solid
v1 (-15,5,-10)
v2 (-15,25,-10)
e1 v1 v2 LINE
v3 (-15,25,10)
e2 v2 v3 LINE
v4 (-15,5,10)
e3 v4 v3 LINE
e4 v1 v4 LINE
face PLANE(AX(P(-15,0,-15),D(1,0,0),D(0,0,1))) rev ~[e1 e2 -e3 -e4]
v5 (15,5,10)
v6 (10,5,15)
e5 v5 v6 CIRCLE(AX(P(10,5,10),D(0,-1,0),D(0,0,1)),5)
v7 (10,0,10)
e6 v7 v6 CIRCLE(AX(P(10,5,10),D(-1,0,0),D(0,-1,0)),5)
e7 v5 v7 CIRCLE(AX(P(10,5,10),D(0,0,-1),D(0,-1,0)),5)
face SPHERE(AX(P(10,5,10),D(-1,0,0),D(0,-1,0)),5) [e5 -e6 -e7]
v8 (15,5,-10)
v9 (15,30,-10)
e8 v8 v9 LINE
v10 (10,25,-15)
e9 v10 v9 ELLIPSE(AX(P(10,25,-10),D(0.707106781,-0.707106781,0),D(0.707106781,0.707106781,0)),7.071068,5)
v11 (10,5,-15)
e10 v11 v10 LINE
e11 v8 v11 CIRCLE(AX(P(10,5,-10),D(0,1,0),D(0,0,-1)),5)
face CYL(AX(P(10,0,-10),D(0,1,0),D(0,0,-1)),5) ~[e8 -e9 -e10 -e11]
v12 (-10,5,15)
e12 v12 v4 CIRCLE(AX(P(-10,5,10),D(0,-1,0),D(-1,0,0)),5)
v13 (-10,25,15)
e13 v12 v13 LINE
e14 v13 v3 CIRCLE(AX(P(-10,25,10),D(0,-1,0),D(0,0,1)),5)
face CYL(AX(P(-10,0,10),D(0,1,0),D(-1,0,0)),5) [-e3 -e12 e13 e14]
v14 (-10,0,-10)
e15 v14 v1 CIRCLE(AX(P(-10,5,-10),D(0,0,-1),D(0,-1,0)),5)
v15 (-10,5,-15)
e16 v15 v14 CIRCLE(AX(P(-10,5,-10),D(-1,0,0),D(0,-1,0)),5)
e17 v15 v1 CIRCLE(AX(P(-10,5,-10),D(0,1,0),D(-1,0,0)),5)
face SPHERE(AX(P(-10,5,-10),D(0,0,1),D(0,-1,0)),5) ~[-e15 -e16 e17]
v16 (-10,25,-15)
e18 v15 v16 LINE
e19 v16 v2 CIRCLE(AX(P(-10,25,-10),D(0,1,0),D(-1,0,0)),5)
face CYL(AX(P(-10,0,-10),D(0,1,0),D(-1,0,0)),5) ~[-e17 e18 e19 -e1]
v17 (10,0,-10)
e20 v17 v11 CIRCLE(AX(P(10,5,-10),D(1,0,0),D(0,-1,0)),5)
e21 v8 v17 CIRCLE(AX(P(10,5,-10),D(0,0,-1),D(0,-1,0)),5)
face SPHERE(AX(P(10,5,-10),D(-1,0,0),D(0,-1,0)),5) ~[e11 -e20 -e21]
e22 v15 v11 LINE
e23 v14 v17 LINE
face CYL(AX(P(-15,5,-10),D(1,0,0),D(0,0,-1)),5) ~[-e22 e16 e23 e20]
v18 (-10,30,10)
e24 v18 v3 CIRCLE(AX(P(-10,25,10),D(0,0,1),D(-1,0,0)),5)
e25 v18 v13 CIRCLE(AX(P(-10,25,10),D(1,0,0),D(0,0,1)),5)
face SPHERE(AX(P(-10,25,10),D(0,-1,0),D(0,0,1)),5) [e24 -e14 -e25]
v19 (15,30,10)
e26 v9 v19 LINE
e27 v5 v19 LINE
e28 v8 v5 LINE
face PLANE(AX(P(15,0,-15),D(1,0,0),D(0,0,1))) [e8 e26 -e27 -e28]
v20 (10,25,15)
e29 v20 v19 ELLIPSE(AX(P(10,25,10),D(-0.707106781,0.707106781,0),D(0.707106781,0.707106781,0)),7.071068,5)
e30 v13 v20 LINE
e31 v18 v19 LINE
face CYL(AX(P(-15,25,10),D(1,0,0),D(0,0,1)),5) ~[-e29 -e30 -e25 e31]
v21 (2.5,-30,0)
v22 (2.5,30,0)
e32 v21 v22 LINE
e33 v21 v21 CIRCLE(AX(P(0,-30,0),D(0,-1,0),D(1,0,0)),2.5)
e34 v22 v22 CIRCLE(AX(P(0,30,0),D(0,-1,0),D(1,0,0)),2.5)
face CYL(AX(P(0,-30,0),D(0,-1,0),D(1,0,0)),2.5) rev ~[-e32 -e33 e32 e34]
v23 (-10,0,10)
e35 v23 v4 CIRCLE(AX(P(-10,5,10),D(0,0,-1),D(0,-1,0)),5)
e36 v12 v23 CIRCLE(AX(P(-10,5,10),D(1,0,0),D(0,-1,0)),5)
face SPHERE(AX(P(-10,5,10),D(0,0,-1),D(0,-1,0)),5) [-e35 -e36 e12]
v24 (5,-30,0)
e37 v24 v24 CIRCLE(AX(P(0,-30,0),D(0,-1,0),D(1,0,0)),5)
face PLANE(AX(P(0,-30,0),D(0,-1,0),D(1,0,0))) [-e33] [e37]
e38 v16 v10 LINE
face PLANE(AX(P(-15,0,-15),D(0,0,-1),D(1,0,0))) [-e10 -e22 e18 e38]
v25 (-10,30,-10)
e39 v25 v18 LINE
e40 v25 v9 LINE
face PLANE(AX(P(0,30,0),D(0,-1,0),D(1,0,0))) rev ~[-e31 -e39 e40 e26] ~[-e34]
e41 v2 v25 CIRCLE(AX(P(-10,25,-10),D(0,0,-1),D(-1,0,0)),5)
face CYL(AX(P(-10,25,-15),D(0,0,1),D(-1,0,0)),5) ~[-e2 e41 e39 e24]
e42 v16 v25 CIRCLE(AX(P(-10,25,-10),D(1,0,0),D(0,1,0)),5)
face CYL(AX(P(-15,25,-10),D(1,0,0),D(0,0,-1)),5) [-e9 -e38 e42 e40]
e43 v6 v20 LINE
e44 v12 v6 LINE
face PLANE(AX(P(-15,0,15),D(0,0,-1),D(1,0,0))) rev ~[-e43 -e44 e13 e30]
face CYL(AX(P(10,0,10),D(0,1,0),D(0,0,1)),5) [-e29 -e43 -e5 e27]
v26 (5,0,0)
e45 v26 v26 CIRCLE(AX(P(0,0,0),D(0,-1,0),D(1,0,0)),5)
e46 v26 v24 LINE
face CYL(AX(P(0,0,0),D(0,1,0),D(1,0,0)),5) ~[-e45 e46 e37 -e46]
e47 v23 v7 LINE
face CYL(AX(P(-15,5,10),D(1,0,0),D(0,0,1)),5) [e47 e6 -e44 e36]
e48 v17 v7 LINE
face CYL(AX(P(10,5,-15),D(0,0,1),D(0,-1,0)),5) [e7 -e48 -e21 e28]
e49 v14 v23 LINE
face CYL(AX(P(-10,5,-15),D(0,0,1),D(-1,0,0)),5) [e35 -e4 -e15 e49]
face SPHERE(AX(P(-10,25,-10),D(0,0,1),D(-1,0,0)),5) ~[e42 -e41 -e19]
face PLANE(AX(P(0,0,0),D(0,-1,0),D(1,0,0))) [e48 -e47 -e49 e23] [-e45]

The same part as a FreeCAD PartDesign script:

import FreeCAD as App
import Part
import Sketcher

V = App.Vector


def edges_at(feature, points):
    """Names of the edges that pass closest to the given points."""
    edges = feature.Shape.Edges
    near = lambda p: min(range(len(edges)), key=lambda i: edges[i].distToShape(Part.Vertex(*p))[0])
    return sorted({f"Edge{near(p) + 1}" for p in points})


def add_polygon(sketch, points):
    """Adds a closed chain of lines whose ends are joined by coincident constraints."""
    first, n = sketch.GeometryCount, len(points)
    for a, b in zip(points, points[1:] + points[:1]):
        sketch.addGeometry(Part.LineSegment(App.Vector(*a, 0), App.Vector(*b, 0)), False)
    for i in range(n):
        sketch.addConstraint(Sketcher.Constraint("Coincident", first + i, 2, first + (i + 1) % n, 1))

doc = App.newDocument("Part")
body = doc.addObject("PartDesign::Body", "Body")

# Sketch on XZ plane
sketch1 = doc.addObject("Sketcher::SketchObject", "Sketch")
body.addObject(sketch1)
sketch1.AttachmentSupport = (doc.XZ_Plane, [""])
sketch1.MapMode = "FlatFace"
add_polygon(sketch1, [(-15, 15), (-15, -15), (15, -15), (15, 15)])  # lines 0-3
sketch1.addConstraint(Sketcher.Constraint("Vertical", 0))
sketch1.addConstraint(Sketcher.Constraint("Horizontal", 1))
sketch1.addConstraint(Sketcher.Constraint("Vertical", 2))
sketch1.addConstraint(Sketcher.Constraint("Horizontal", 3))
sketch1.addConstraint(Sketcher.Constraint("Symmetric", 0, 2, 2, 2, -1, 1))
sketch1.addConstraint(Sketcher.Constraint("Equal", 3, 0))
sketch1.addConstraint(Sketcher.Constraint("DistanceX", 1, 1, 1, 2, 30.0))
pad1 = doc.addObject("PartDesign::Pad", "Pad")
body.addObject(pad1)
pad1.Profile = sketch1
pad1.Length = 30
pad1.Reversed = True

# Sketch on XZ plane
sketch2 = doc.addObject("Sketcher::SketchObject", "Sketch001")
body.addObject(sketch2)
sketch2.AttachmentSupport = (doc.XZ_Plane, [""])
sketch2.MapMode = "FlatFace"
sketch2.addGeometry(Part.Circle(V(0, 0, 0), V(0, 0, 1), 5), False)
sketch2.addConstraint(Sketcher.Constraint("Coincident", 0, 3, -1, 1))
sketch2.addConstraint(Sketcher.Constraint("Diameter", 0, 10.0))
pad2 = doc.addObject("PartDesign::Pad", "Pad001")
body.addObject(pad2)
pad2.Profile = sketch2
pad2.Length = 30

# Sketch on XZ plane
sketch3 = doc.addObject("Sketcher::SketchObject", "Sketch002")
body.addObject(sketch3)
sketch3.AttachmentSupport = (doc.XZ_Plane, [""])
sketch3.MapMode = "FlatFace"
sketch3.AttachmentOffset = App.Placement(V(0, 0, 30), App.Rotation())
sketch3.addGeometry(Part.Circle(V(0, 0, 0), V(0, 0, 1), 2.5), False)
sketch3.addConstraint(Sketcher.Constraint("Coincident", 0, 3, -1, 1))
sketch3.addConstraint(Sketcher.Constraint("Diameter", 0, 5.0))
pocket1 = doc.addObject("PartDesign::Pocket", "Pocket")
body.addObject(pocket1)
pocket1.Profile = sketch3
pocket1.Type = "ThroughAll"
doc.recompute()

fillet = doc.addObject("PartDesign::Fillet", "Fillet")
body.addObject(fillet)
fillet.Base = (pocket1, edges_at(pocket1, [
    (-15, 0, 0),
    (0, 0, -15),
    (0, 0, 15),
    (15, 0, 0),
    (-15, 15, 15),
    (15, 15, 15),
    (0, 30, 15),
    (-15, 30, 0),
    (-15, 15, -15),
    (0, 30, -15),
    (15, 15, -15),
]))
fillet.Radius = 5

doc.recompute()
